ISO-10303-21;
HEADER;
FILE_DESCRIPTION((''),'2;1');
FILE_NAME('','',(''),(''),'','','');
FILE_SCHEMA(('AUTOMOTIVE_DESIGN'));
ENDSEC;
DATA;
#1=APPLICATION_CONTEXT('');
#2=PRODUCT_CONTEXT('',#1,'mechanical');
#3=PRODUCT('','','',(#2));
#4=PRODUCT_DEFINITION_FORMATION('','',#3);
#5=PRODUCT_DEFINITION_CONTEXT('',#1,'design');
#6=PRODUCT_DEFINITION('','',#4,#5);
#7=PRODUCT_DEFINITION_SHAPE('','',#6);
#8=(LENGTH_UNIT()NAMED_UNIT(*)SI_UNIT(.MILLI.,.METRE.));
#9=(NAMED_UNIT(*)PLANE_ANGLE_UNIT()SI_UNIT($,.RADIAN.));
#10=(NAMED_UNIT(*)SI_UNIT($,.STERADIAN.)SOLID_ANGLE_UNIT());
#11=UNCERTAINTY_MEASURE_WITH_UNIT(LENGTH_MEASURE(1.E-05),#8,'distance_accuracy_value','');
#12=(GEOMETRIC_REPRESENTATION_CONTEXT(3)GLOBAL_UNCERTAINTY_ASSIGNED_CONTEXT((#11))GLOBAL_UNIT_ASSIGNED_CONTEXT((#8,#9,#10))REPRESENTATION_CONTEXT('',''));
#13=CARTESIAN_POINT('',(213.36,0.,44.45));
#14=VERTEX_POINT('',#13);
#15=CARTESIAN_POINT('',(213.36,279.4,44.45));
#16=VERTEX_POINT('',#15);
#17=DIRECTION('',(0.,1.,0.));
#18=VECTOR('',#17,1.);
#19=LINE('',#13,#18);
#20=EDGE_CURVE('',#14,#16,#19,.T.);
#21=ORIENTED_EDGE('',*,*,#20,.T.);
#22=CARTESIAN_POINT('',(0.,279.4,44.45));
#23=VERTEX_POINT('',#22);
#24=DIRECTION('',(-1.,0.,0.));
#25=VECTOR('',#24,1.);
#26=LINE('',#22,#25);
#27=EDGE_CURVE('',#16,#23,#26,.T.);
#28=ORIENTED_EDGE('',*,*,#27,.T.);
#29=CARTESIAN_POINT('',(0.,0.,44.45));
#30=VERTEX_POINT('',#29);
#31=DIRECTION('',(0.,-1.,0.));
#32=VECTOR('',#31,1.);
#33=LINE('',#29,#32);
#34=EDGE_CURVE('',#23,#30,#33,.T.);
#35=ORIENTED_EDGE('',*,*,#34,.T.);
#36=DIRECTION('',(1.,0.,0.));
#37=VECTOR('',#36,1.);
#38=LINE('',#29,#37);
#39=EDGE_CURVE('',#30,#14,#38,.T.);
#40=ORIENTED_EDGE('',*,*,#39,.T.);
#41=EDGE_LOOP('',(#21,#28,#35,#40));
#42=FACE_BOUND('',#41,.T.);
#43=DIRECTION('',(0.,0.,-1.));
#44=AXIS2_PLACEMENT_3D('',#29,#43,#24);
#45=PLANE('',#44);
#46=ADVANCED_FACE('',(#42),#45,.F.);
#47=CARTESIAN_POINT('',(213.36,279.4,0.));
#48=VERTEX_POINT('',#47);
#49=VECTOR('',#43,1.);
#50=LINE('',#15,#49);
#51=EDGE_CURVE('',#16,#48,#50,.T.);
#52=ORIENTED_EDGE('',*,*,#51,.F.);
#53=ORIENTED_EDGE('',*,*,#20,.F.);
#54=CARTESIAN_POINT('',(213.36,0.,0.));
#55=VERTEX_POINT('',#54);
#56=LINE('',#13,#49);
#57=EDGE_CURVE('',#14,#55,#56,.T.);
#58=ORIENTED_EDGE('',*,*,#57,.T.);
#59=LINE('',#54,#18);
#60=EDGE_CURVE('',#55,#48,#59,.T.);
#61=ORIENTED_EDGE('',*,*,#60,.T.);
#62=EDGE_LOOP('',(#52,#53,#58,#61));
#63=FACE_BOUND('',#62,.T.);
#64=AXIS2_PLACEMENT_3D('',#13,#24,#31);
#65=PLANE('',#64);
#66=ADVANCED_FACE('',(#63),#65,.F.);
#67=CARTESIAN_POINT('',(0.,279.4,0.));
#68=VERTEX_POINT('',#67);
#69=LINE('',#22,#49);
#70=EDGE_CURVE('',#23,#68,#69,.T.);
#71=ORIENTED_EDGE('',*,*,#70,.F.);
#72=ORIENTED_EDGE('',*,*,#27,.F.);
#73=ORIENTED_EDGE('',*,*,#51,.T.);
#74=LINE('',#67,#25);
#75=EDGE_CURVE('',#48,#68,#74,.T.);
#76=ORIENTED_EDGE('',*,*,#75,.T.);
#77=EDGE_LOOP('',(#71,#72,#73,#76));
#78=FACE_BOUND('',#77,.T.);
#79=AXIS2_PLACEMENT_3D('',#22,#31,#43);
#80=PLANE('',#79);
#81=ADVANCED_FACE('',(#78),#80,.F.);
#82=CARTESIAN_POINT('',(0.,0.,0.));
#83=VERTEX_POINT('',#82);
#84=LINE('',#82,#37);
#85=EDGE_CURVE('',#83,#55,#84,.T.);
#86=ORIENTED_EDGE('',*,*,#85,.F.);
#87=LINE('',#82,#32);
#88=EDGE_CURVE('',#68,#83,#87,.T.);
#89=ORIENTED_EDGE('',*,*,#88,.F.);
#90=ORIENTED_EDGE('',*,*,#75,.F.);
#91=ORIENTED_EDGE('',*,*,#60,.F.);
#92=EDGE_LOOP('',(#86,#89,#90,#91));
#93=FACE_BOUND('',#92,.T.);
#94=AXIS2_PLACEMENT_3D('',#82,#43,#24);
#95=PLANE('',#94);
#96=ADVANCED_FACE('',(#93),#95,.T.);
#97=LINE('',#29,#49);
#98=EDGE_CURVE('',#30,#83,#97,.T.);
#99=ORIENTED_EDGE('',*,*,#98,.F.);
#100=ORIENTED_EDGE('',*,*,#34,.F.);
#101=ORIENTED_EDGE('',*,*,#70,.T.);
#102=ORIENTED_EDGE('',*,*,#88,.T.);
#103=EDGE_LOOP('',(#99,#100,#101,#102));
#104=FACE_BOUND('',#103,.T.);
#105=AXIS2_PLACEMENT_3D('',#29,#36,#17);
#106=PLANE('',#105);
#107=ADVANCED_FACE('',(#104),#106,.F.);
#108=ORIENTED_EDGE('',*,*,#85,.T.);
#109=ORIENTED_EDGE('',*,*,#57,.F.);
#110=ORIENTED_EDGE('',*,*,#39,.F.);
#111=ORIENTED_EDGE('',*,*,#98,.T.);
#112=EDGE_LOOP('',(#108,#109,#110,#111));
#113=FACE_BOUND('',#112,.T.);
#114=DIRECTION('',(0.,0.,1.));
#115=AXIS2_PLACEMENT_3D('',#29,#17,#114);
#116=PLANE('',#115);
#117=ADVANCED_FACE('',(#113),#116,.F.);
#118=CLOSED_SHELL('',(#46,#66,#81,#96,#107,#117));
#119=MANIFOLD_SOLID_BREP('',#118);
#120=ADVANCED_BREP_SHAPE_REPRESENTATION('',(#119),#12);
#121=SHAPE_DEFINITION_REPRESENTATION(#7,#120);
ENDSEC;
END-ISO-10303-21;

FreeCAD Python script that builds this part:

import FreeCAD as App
import Part
import Sketcher
from FreeCAD import Vector
Q = App.Units.Quantity


def add_polygon(sketch, points):
    """Adds a closed chain of lines whose ends are joined by coincident constraints."""
    first, n = sketch.GeometryCount, len(points)
    for a, b in zip(points, points[1:] + points[:1]):
        sketch.addGeometry(Part.LineSegment(App.Vector(*a, 0), App.Vector(*b, 0)), False)
    for i in range(n):
        sketch.addConstraint(Sketcher.Constraint("Coincident", first + i, 2, first + (i + 1) % n, 1))

doc = App.newDocument("Part")
body = doc.addObject("PartDesign::Body", "Body")

sketch1 = body.newObject("Sketcher::SketchObject", "Sketch")
sketch1.AttachmentSupport = (doc.getObject("XY_Plane"), [""])
sketch1.MapMode = "FlatFace"
add_polygon(sketch1, [(0, 279), (0, 0), (213, 0), (213, 279)])
sketch1.addConstraint([
    Sketcher.Constraint("Vertical", 0),
    Sketcher.Constraint("Horizontal", 1),
    Sketcher.Constraint("Vertical", 2),
    Sketcher.Constraint("Horizontal", 3),
    Sketcher.Constraint("Coincident", 0, 2, -1, 1),
    Sketcher.Constraint("DistanceY", 0, 2, 0, 1, Q("11 in")),
    Sketcher.Constraint("DistanceX", 1, 1, 1, 2, Q("8.4 in")),
])
pad1 = body.newObject("PartDesign::Pad", "Pad")
pad1.Profile = sketch1
pad1.Length = Q("1.75 in")

doc.recompute()
